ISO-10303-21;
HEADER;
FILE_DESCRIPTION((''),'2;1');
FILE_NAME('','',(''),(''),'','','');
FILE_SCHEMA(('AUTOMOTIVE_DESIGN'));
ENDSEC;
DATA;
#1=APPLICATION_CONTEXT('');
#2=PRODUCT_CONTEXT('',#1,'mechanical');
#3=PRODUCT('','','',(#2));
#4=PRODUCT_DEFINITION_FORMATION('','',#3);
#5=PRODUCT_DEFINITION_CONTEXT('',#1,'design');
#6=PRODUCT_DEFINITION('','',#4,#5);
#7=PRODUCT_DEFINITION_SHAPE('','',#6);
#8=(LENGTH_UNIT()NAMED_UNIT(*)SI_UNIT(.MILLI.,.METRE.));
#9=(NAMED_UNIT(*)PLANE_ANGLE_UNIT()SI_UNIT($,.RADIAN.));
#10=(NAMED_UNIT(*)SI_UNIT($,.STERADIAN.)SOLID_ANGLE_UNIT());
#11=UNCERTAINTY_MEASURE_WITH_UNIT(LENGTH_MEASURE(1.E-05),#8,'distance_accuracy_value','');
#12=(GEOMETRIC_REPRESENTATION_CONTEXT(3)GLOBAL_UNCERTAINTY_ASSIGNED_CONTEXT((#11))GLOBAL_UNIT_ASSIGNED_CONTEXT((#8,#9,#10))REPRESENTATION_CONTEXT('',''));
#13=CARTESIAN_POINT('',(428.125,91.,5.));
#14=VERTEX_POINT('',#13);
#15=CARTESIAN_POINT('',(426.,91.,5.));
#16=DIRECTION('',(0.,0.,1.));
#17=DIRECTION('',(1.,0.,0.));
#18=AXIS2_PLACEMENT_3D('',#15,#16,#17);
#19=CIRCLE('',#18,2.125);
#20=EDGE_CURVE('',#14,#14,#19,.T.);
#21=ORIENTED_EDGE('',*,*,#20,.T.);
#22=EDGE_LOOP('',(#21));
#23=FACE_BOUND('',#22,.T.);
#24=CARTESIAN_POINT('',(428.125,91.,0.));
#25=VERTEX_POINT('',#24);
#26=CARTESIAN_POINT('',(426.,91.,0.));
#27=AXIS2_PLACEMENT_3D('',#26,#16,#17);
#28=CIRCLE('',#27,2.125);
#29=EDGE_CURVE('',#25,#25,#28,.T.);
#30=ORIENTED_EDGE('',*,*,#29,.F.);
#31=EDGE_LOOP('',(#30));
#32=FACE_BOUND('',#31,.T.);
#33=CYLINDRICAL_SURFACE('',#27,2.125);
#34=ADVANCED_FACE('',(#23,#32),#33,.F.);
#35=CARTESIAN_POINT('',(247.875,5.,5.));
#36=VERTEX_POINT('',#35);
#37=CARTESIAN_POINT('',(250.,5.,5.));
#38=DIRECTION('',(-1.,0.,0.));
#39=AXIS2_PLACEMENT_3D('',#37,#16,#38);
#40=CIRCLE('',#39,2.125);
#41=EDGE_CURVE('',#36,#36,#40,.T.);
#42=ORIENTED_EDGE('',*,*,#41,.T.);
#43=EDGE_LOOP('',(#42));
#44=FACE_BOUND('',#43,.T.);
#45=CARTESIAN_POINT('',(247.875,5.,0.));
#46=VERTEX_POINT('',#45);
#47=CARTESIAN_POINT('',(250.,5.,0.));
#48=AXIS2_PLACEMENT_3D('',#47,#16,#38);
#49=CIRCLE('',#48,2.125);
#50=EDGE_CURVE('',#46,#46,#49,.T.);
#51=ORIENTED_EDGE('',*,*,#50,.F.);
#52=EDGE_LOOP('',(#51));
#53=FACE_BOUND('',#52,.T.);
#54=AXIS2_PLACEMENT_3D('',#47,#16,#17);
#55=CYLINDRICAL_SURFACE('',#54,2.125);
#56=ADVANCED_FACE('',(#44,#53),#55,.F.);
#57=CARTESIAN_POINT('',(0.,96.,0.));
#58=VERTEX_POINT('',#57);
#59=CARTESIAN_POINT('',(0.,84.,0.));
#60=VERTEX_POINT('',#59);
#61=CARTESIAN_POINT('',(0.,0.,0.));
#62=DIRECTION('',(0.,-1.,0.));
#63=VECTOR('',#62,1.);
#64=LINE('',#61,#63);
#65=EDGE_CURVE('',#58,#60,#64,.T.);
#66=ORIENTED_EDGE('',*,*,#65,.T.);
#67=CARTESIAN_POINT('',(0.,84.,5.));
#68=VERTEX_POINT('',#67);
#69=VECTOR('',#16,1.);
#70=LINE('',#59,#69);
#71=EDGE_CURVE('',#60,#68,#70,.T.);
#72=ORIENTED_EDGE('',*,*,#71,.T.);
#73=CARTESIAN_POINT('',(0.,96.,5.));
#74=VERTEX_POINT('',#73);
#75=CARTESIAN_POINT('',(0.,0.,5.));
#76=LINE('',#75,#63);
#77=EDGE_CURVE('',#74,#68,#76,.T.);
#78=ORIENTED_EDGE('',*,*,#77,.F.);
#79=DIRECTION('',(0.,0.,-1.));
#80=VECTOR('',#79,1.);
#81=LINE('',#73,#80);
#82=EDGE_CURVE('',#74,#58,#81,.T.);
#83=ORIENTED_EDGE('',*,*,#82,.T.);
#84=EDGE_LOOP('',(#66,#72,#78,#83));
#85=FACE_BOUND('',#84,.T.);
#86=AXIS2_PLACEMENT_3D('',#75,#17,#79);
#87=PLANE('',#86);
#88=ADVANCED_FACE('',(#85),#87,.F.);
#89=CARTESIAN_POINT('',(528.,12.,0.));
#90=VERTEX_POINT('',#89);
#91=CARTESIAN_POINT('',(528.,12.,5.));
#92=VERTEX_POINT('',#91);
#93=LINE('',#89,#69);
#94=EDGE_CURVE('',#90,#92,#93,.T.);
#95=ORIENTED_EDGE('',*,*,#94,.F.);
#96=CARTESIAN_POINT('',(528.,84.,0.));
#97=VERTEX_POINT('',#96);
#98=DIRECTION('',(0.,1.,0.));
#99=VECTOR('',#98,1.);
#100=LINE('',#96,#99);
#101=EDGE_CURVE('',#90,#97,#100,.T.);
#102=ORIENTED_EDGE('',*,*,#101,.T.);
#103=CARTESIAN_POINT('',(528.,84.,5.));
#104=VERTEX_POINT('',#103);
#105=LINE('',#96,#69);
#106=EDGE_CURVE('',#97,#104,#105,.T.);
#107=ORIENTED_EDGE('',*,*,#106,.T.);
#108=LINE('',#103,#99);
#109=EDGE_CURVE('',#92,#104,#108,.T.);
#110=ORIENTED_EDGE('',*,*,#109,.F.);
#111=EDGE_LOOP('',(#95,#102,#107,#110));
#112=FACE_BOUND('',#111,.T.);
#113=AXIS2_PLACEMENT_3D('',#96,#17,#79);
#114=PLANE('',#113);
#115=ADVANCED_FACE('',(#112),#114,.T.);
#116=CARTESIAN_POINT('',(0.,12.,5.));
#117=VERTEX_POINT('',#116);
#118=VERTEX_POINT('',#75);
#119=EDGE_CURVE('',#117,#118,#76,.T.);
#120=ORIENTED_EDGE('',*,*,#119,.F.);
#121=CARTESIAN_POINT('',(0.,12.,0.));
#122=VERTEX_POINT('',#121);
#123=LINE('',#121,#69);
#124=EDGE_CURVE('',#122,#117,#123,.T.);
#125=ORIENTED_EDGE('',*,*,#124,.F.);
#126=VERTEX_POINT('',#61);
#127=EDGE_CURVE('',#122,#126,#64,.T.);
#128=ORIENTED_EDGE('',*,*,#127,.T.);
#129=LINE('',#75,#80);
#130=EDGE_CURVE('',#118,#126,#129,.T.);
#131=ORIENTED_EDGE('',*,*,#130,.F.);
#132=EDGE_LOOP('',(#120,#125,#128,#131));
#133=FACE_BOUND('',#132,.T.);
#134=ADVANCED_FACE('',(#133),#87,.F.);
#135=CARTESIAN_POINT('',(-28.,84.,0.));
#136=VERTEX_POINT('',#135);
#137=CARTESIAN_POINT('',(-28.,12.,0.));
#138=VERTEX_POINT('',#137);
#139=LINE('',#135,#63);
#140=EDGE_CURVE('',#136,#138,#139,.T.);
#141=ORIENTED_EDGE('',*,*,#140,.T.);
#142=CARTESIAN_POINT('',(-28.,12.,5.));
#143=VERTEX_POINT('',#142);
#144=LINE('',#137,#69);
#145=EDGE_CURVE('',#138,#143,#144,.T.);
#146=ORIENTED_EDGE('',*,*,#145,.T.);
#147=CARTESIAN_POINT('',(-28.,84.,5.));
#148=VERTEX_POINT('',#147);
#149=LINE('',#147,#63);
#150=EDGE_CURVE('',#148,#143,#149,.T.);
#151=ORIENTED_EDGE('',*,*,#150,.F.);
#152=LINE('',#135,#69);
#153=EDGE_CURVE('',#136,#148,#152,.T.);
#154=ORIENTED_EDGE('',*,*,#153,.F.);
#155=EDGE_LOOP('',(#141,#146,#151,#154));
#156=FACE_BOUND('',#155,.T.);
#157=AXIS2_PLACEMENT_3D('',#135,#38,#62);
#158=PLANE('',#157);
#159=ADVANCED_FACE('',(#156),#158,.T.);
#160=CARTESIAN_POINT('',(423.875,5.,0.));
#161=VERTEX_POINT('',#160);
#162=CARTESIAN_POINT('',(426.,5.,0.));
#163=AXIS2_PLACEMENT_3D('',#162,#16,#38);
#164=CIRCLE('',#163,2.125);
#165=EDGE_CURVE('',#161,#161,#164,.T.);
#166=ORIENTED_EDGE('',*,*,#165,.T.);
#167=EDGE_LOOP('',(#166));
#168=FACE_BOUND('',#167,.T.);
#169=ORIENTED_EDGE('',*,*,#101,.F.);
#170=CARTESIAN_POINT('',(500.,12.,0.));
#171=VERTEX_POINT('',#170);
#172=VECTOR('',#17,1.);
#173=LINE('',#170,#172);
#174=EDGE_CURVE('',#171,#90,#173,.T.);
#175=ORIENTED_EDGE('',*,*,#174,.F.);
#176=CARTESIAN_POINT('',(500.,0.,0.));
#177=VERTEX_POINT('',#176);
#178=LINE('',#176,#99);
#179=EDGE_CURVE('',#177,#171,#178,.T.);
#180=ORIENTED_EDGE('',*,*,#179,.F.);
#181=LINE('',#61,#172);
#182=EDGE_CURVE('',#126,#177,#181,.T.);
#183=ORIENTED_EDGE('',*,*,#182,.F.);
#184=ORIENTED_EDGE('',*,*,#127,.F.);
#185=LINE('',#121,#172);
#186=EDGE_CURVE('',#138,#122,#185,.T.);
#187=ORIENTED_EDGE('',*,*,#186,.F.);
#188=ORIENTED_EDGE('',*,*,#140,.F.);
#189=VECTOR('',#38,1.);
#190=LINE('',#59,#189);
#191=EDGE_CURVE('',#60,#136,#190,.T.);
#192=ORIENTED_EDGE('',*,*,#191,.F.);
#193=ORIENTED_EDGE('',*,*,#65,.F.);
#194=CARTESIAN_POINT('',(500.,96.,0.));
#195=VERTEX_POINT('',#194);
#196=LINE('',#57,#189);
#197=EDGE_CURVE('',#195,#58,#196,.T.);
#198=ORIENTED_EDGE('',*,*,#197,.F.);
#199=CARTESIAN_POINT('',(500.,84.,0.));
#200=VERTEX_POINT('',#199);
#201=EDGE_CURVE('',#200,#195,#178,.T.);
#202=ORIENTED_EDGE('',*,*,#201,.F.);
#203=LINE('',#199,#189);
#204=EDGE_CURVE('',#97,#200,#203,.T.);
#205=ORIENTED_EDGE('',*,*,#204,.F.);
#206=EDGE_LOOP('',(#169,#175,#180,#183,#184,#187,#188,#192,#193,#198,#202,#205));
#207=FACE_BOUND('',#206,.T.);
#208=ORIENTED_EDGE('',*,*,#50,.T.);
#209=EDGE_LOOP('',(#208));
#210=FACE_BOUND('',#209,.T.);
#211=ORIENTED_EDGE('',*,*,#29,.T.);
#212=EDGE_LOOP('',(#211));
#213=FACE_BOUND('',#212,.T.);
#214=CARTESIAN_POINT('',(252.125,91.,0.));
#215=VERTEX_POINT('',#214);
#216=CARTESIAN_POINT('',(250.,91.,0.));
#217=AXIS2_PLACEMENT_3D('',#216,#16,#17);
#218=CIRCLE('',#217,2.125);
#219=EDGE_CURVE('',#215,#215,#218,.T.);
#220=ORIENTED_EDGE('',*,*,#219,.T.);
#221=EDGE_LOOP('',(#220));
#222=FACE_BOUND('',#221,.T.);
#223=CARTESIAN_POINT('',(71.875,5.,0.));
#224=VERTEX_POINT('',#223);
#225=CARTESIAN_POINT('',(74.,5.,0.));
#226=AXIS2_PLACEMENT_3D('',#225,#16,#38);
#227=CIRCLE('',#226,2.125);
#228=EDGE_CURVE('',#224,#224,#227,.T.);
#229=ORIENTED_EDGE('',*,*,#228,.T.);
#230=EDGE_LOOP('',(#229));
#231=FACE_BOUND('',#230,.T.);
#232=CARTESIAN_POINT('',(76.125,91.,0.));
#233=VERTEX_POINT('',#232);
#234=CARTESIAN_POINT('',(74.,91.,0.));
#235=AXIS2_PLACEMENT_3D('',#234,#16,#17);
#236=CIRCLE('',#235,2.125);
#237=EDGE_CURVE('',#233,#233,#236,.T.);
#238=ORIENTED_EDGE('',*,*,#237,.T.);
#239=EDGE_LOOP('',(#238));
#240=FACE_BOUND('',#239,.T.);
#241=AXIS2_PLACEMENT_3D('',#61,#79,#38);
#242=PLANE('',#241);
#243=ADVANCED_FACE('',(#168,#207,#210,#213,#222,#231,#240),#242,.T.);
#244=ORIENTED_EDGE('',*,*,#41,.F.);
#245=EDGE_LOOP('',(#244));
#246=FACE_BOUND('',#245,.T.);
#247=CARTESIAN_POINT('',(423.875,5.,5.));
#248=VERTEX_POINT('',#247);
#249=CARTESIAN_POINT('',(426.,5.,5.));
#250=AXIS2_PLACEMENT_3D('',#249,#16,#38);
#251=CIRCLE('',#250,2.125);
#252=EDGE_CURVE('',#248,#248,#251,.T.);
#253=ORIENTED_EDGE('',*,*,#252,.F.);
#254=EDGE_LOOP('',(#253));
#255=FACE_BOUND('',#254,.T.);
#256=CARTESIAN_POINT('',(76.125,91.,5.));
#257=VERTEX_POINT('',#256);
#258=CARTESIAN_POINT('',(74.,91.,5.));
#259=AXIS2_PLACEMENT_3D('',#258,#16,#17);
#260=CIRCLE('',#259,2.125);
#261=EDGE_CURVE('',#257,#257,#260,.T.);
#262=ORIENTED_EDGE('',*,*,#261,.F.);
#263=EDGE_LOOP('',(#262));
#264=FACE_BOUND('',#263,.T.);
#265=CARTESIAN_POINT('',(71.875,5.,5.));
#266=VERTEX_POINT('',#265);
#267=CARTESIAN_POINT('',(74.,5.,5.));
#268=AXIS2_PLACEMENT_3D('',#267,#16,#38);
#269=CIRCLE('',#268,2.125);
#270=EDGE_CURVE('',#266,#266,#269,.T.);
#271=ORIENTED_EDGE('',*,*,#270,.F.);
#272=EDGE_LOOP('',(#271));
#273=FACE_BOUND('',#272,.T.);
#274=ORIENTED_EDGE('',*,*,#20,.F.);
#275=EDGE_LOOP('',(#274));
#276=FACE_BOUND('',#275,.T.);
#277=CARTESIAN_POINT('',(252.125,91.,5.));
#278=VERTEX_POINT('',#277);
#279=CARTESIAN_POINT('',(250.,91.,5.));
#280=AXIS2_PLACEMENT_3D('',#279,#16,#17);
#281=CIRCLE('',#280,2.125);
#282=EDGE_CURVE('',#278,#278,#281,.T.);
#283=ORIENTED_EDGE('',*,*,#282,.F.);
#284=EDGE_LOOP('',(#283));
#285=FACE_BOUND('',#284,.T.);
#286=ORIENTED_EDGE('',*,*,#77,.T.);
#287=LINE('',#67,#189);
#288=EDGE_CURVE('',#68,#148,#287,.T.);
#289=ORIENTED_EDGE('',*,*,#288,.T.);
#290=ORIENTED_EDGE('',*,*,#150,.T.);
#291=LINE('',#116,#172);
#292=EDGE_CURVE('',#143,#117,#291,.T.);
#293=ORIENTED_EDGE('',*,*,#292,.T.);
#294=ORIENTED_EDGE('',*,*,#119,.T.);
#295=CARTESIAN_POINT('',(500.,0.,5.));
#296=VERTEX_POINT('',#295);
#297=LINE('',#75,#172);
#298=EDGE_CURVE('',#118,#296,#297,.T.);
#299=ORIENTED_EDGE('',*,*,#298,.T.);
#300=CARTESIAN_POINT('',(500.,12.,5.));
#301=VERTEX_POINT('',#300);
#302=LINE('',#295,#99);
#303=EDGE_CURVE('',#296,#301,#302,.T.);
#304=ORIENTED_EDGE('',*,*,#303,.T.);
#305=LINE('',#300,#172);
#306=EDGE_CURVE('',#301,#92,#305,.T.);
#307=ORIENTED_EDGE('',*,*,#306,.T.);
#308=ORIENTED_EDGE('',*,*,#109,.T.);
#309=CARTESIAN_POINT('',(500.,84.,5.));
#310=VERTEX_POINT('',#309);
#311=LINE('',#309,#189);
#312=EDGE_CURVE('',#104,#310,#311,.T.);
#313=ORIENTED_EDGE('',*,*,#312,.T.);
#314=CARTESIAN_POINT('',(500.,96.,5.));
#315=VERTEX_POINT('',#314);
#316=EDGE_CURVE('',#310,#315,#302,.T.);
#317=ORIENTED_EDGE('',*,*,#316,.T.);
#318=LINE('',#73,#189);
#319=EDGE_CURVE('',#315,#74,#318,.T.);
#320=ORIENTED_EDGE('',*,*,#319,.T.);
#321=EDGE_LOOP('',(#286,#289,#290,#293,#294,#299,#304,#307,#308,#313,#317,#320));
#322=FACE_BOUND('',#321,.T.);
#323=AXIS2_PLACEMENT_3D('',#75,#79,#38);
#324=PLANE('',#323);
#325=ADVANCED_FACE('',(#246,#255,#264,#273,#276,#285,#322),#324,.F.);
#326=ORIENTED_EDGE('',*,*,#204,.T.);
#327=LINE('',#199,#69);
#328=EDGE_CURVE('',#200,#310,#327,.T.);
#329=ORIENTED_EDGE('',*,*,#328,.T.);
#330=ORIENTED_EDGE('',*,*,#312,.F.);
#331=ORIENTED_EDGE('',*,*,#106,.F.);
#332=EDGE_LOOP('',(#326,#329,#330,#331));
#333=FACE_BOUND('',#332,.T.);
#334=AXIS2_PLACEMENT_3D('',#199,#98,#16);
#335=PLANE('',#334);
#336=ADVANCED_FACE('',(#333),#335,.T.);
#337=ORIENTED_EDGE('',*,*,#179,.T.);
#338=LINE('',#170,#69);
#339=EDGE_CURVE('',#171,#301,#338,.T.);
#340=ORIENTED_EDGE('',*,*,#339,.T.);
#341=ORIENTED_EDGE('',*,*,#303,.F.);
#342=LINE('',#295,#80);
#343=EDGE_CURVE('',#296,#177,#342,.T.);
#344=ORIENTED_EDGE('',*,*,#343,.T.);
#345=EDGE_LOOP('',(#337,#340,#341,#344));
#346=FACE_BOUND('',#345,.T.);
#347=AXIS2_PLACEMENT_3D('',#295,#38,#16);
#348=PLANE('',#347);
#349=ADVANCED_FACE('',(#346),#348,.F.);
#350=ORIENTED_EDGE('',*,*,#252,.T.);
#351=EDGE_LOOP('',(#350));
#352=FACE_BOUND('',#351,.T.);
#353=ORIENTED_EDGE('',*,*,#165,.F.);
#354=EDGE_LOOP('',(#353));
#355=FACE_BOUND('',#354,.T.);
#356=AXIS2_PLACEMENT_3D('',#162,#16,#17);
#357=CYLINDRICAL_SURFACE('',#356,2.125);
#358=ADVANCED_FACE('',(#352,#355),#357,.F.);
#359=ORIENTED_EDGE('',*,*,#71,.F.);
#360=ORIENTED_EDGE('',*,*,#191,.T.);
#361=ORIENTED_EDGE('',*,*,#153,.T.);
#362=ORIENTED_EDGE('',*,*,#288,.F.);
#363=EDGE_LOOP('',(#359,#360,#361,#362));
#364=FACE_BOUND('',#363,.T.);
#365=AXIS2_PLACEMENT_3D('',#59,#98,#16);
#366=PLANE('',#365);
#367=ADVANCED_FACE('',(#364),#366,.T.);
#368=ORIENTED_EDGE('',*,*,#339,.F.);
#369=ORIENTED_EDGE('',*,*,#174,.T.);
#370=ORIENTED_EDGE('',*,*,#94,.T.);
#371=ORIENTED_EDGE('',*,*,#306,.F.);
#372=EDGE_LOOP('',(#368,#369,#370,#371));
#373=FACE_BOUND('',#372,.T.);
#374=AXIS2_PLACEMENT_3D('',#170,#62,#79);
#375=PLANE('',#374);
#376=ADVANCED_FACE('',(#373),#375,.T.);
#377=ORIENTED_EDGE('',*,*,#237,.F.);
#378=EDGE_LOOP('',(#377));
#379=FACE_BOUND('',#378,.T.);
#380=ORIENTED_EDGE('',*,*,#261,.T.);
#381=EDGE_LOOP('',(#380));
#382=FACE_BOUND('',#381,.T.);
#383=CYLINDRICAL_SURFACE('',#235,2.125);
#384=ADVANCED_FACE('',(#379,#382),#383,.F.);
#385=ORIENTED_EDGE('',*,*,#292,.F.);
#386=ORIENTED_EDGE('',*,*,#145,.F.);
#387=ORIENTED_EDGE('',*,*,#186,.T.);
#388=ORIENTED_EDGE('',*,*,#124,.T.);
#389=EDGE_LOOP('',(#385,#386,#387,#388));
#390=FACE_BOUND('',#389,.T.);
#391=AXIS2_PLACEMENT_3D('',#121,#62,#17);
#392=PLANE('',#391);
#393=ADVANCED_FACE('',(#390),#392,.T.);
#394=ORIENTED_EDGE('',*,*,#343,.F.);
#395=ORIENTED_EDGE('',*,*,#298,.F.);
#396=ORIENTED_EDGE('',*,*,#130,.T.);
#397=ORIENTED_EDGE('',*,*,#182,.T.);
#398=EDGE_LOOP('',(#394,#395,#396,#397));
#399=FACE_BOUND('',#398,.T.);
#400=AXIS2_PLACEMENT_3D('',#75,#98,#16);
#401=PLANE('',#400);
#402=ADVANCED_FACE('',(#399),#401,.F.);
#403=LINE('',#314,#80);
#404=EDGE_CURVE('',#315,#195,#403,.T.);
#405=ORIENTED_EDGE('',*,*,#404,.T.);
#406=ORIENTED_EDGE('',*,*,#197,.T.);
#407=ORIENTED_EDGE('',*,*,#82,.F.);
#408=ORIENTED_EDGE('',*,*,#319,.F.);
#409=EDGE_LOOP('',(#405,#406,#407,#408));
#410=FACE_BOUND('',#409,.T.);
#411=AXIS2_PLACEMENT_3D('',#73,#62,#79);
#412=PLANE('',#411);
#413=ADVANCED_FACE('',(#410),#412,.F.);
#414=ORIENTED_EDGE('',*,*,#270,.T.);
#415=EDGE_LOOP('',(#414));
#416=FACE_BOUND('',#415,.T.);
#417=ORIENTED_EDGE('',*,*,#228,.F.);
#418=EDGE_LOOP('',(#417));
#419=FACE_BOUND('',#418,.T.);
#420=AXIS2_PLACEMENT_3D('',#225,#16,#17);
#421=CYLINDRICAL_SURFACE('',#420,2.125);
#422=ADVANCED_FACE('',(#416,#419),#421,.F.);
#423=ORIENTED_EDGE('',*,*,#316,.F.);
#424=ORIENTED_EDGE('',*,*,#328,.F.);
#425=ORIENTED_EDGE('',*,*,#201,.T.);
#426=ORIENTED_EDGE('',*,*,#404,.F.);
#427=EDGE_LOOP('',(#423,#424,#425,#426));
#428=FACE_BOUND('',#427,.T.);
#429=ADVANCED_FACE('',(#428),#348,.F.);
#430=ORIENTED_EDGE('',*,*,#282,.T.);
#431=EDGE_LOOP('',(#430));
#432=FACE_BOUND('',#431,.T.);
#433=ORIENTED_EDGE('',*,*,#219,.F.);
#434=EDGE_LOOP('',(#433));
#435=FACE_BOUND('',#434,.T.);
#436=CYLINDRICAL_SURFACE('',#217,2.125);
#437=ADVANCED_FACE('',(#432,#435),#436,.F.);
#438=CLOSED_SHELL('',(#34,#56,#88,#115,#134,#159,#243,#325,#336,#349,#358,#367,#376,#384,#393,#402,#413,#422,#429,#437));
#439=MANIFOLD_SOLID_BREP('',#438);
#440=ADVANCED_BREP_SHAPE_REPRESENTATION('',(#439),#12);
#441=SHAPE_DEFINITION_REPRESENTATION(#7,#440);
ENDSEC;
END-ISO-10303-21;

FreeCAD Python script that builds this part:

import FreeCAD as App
import Part
import Sketcher
from FreeCAD import Vector
Q = App.Units.Quantity

doc = App.newDocument("Part")
params = doc.addObject("Spreadsheet::Sheet", "Params")
for row, (alias, value) in enumerate([
    ("sketch1_width", "500 mm"),
    ("sketch1_height", "96 mm"),
    ("pad1_length", "5 mm"),
    ("sketch2_diameter", "4.25 mm"),
    ("pocket1_length", "5 mm"),
    ("sketch3_width", "28 mm"),
    ("sketch3_height", "72 mm"),
    ("pad2_length", "5 mm"),
], start=1):
    params.set(f"A{row}", alias)
    params.set(f"B{row}", "=" + value)
    params.setAlias(f"B{row}", alias)

body = doc.addObject("PartDesign::Body", "Body")

sketch1 = doc.addObject("Sketcher::SketchObject", "Sketch")
body.addObject(sketch1)
sketch1.AttachmentSupport = (doc.XY_Plane, [""])
sketch1.MapMode = "FlatFace"
sketch1.addGeometry([
    Part.LineSegment(Vector(0, 96, 0), Vector(0, 0, 0)),
    Part.LineSegment(Vector(0, 0, 0), Vector(500, 0, 0)),
    Part.LineSegment(Vector(500, 0, 0), Vector(500, 96, 0)),
    Part.LineSegment(Vector(500, 96, 0), Vector(0, 96, 0)),
], False)
sketch1.addConstraint([
    Sketcher.Constraint("Coincident", 0, 2, 1, 1),
    Sketcher.Constraint("Coincident", 1, 2, 2, 1),
    Sketcher.Constraint("Coincident", 2, 2, 3, 1),
    Sketcher.Constraint("Coincident", 3, 2, 0, 1),
    Sketcher.Constraint("Vertical", 0),
    Sketcher.Constraint("Horizontal", 1),
    Sketcher.Constraint("Vertical", 2),
    Sketcher.Constraint("Horizontal", 3),
    Sketcher.Constraint("Coincident", 0, 2, -1, 1),
    Sketcher.Constraint("DistanceX", 1, 1, 1, 2, Q("500 mm")),
    Sketcher.Constraint("DistanceY", 0, 2, 0, 1, Q("96 mm")),
])
sketch1.setExpression("Constraints[9]", "Params.sketch1_width")
sketch1.setExpression("Constraints[10]", "Params.sketch1_height")
pad1 = doc.addObject("PartDesign::Pad", "Pad")
body.addObject(pad1)
pad1.Profile = sketch1
pad1.setExpression("Length", "Params.pad1_length")

sketch2 = doc.addObject("Sketcher::SketchObject", "Sketch001")
body.addObject(sketch2)
sketch2.AttachmentSupport = (doc.XY_Plane, [""])
sketch2.MapMode = "FlatFace"
sketch2.AttachmentOffset = App.Placement(Vector(0, 0, 5), App.Rotation())
sketch2.addGeometry([
    Part.Circle(Vector(74, 91, 0), Vector(0, 0, 1), 2.1),
    Part.Circle(Vector(250, 91, 0), Vector(0, 0, 1), 2.1),
    Part.Circle(Vector(426, 91, 0), Vector(0, 0, 1), 2.1),
    Part.Circle(Vector(426, 5, 0), Vector(0, 0, 1), 2.1),
    Part.Circle(Vector(250, 5, 0), Vector(0, 0, 1), 2.1),
    Part.Circle(Vector(74, 5, 0), Vector(0, 0, 1), 2.1),
], False)
sketch2.addConstraint([
    Sketcher.Constraint("Equal", 0, 1),
    Sketcher.Constraint("Equal", 1, 2),
    Sketcher.Constraint("Equal", 2, 3),
    Sketcher.Constraint("Equal", 3, 4),
    Sketcher.Constraint("Equal", 4, 5),
    Sketcher.Constraint("Horizontal", 0, 3, 1, 3),
    Sketcher.Constraint("Horizontal", 1, 3, 2, 3),
    Sketcher.Constraint("Horizontal", 3, 3, 4, 3),
    Sketcher.Constraint("Horizontal", 4, 3, 5, 3),
    Sketcher.Constraint("Vertical", 2, 3, 3, 3),
    Sketcher.Constraint("Vertical", 1, 3, 4, 3),
    Sketcher.Constraint("Vertical", 0, 3, 5, 3),
    Sketcher.Constraint("Diameter", 0, Q("4.25 mm")),
    Sketcher.Constraint("DistanceX", -1, 1, 0, 3, Q("74 mm")),
    Sketcher.Constraint("DistanceY", -1, 1, 0, 3, Q("91 mm")),
    Sketcher.Constraint("DistanceX", -1, 1, 1, 3, Q("250 mm")),
    Sketcher.Constraint("DistanceX", -1, 1, 2, 3, Q("426 mm")),
    Sketcher.Constraint("DistanceY", -1, 1, 3, 3, Q("5 mm")),
])
sketch2.setExpression("Constraints[12]", "Params.sketch2_diameter")
pocket1 = doc.addObject("PartDesign::Pocket", "Pocket")
body.addObject(pocket1)
pocket1.Profile = sketch2
pocket1.setExpression("Length", "Params.pocket1_length")

sketch3 = doc.addObject("Sketcher::SketchObject", "Sketch002")
body.addObject(sketch3)
sketch3.AttachmentSupport = (doc.XY_Plane, [""])
sketch3.MapMode = "FlatFace"
sketch3.AttachmentOffset = App.Placement(Vector(0, 0, 5), App.Rotation())
sketch3.addGeometry([
    Part.LineSegment(Vector(500, 84, 0), Vector(500, 12, 0)),
    Part.LineSegment(Vector(500, 12, 0), Vector(528, 12, 0)),
    Part.LineSegment(Vector(528, 12, 0), Vector(528, 84, 0)),
    Part.LineSegment(Vector(528, 84, 0), Vector(500, 84, 0)),
    Part.LineSegment(Vector(-28, 84, 0), Vector(-28, 12, 0)),
    Part.LineSegment(Vector(-28, 12, 0), Vector(0, 12, 0)),
    Part.LineSegment(Vector(0, 12, 0), Vector(0, 84, 0)),
    Part.LineSegment(Vector(0, 84, 0), Vector(-28, 84, 0)),
], False)
sketch3.addConstraint([
    Sketcher.Constraint("Coincident", 0, 2, 1, 1),
    Sketcher.Constraint("Coincident", 1, 2, 2, 1),
    Sketcher.Constraint("Coincident", 2, 2, 3, 1),
    Sketcher.Constraint("Coincident", 3, 2, 0, 1),
    Sketcher.Constraint("Coincident", 4, 2, 5, 1),
    Sketcher.Constraint("Coincident", 5, 2, 6, 1),
    Sketcher.Constraint("Coincident", 6, 2, 7, 1),
    Sketcher.Constraint("Coincident", 7, 2, 4, 1),
    Sketcher.Constraint("Vertical", 0),
    Sketcher.Constraint("Horizontal", 1),
    Sketcher.Constraint("Vertical", 2),
    Sketcher.Constraint("Horizontal", 3),
    Sketcher.Constraint("Vertical", 4),
    Sketcher.Constraint("Horizontal", 5),
    Sketcher.Constraint("Vertical", 6),
    Sketcher.Constraint("Horizontal", 7),
    Sketcher.Constraint("PointOnObject", 5, 2, -2),
    Sketcher.Constraint("Horizontal", 1, 2, 4, 2),
    Sketcher.Constraint("Horizontal", 3, 2, 6, 2),
    Sketcher.Constraint("Equal", 3, 5),
    Sketcher.Constraint("DistanceX", 1, 1, 1, 2, Q("28 mm")),
    Sketcher.Constraint("DistanceY", 0, 2, 0, 1, Q("72 mm")),
    Sketcher.Constraint("DistanceX", -1, 1, 0, 2, Q("500 mm")),
    Sketcher.Constraint("DistanceY", -1, 1, 0, 2, Q("12 mm")),
])
sketch3.setExpression("Constraints[20]", "Params.sketch3_width")
sketch3.setExpression("Constraints[21]", "Params.sketch3_height")
pad2 = doc.addObject("PartDesign::Pad", "Pad001")
body.addObject(pad2)
pad2.Profile = sketch3
pad2.setExpression("Length", "Params.pad2_length")
pad2.Reversed = True

doc.recompute()
